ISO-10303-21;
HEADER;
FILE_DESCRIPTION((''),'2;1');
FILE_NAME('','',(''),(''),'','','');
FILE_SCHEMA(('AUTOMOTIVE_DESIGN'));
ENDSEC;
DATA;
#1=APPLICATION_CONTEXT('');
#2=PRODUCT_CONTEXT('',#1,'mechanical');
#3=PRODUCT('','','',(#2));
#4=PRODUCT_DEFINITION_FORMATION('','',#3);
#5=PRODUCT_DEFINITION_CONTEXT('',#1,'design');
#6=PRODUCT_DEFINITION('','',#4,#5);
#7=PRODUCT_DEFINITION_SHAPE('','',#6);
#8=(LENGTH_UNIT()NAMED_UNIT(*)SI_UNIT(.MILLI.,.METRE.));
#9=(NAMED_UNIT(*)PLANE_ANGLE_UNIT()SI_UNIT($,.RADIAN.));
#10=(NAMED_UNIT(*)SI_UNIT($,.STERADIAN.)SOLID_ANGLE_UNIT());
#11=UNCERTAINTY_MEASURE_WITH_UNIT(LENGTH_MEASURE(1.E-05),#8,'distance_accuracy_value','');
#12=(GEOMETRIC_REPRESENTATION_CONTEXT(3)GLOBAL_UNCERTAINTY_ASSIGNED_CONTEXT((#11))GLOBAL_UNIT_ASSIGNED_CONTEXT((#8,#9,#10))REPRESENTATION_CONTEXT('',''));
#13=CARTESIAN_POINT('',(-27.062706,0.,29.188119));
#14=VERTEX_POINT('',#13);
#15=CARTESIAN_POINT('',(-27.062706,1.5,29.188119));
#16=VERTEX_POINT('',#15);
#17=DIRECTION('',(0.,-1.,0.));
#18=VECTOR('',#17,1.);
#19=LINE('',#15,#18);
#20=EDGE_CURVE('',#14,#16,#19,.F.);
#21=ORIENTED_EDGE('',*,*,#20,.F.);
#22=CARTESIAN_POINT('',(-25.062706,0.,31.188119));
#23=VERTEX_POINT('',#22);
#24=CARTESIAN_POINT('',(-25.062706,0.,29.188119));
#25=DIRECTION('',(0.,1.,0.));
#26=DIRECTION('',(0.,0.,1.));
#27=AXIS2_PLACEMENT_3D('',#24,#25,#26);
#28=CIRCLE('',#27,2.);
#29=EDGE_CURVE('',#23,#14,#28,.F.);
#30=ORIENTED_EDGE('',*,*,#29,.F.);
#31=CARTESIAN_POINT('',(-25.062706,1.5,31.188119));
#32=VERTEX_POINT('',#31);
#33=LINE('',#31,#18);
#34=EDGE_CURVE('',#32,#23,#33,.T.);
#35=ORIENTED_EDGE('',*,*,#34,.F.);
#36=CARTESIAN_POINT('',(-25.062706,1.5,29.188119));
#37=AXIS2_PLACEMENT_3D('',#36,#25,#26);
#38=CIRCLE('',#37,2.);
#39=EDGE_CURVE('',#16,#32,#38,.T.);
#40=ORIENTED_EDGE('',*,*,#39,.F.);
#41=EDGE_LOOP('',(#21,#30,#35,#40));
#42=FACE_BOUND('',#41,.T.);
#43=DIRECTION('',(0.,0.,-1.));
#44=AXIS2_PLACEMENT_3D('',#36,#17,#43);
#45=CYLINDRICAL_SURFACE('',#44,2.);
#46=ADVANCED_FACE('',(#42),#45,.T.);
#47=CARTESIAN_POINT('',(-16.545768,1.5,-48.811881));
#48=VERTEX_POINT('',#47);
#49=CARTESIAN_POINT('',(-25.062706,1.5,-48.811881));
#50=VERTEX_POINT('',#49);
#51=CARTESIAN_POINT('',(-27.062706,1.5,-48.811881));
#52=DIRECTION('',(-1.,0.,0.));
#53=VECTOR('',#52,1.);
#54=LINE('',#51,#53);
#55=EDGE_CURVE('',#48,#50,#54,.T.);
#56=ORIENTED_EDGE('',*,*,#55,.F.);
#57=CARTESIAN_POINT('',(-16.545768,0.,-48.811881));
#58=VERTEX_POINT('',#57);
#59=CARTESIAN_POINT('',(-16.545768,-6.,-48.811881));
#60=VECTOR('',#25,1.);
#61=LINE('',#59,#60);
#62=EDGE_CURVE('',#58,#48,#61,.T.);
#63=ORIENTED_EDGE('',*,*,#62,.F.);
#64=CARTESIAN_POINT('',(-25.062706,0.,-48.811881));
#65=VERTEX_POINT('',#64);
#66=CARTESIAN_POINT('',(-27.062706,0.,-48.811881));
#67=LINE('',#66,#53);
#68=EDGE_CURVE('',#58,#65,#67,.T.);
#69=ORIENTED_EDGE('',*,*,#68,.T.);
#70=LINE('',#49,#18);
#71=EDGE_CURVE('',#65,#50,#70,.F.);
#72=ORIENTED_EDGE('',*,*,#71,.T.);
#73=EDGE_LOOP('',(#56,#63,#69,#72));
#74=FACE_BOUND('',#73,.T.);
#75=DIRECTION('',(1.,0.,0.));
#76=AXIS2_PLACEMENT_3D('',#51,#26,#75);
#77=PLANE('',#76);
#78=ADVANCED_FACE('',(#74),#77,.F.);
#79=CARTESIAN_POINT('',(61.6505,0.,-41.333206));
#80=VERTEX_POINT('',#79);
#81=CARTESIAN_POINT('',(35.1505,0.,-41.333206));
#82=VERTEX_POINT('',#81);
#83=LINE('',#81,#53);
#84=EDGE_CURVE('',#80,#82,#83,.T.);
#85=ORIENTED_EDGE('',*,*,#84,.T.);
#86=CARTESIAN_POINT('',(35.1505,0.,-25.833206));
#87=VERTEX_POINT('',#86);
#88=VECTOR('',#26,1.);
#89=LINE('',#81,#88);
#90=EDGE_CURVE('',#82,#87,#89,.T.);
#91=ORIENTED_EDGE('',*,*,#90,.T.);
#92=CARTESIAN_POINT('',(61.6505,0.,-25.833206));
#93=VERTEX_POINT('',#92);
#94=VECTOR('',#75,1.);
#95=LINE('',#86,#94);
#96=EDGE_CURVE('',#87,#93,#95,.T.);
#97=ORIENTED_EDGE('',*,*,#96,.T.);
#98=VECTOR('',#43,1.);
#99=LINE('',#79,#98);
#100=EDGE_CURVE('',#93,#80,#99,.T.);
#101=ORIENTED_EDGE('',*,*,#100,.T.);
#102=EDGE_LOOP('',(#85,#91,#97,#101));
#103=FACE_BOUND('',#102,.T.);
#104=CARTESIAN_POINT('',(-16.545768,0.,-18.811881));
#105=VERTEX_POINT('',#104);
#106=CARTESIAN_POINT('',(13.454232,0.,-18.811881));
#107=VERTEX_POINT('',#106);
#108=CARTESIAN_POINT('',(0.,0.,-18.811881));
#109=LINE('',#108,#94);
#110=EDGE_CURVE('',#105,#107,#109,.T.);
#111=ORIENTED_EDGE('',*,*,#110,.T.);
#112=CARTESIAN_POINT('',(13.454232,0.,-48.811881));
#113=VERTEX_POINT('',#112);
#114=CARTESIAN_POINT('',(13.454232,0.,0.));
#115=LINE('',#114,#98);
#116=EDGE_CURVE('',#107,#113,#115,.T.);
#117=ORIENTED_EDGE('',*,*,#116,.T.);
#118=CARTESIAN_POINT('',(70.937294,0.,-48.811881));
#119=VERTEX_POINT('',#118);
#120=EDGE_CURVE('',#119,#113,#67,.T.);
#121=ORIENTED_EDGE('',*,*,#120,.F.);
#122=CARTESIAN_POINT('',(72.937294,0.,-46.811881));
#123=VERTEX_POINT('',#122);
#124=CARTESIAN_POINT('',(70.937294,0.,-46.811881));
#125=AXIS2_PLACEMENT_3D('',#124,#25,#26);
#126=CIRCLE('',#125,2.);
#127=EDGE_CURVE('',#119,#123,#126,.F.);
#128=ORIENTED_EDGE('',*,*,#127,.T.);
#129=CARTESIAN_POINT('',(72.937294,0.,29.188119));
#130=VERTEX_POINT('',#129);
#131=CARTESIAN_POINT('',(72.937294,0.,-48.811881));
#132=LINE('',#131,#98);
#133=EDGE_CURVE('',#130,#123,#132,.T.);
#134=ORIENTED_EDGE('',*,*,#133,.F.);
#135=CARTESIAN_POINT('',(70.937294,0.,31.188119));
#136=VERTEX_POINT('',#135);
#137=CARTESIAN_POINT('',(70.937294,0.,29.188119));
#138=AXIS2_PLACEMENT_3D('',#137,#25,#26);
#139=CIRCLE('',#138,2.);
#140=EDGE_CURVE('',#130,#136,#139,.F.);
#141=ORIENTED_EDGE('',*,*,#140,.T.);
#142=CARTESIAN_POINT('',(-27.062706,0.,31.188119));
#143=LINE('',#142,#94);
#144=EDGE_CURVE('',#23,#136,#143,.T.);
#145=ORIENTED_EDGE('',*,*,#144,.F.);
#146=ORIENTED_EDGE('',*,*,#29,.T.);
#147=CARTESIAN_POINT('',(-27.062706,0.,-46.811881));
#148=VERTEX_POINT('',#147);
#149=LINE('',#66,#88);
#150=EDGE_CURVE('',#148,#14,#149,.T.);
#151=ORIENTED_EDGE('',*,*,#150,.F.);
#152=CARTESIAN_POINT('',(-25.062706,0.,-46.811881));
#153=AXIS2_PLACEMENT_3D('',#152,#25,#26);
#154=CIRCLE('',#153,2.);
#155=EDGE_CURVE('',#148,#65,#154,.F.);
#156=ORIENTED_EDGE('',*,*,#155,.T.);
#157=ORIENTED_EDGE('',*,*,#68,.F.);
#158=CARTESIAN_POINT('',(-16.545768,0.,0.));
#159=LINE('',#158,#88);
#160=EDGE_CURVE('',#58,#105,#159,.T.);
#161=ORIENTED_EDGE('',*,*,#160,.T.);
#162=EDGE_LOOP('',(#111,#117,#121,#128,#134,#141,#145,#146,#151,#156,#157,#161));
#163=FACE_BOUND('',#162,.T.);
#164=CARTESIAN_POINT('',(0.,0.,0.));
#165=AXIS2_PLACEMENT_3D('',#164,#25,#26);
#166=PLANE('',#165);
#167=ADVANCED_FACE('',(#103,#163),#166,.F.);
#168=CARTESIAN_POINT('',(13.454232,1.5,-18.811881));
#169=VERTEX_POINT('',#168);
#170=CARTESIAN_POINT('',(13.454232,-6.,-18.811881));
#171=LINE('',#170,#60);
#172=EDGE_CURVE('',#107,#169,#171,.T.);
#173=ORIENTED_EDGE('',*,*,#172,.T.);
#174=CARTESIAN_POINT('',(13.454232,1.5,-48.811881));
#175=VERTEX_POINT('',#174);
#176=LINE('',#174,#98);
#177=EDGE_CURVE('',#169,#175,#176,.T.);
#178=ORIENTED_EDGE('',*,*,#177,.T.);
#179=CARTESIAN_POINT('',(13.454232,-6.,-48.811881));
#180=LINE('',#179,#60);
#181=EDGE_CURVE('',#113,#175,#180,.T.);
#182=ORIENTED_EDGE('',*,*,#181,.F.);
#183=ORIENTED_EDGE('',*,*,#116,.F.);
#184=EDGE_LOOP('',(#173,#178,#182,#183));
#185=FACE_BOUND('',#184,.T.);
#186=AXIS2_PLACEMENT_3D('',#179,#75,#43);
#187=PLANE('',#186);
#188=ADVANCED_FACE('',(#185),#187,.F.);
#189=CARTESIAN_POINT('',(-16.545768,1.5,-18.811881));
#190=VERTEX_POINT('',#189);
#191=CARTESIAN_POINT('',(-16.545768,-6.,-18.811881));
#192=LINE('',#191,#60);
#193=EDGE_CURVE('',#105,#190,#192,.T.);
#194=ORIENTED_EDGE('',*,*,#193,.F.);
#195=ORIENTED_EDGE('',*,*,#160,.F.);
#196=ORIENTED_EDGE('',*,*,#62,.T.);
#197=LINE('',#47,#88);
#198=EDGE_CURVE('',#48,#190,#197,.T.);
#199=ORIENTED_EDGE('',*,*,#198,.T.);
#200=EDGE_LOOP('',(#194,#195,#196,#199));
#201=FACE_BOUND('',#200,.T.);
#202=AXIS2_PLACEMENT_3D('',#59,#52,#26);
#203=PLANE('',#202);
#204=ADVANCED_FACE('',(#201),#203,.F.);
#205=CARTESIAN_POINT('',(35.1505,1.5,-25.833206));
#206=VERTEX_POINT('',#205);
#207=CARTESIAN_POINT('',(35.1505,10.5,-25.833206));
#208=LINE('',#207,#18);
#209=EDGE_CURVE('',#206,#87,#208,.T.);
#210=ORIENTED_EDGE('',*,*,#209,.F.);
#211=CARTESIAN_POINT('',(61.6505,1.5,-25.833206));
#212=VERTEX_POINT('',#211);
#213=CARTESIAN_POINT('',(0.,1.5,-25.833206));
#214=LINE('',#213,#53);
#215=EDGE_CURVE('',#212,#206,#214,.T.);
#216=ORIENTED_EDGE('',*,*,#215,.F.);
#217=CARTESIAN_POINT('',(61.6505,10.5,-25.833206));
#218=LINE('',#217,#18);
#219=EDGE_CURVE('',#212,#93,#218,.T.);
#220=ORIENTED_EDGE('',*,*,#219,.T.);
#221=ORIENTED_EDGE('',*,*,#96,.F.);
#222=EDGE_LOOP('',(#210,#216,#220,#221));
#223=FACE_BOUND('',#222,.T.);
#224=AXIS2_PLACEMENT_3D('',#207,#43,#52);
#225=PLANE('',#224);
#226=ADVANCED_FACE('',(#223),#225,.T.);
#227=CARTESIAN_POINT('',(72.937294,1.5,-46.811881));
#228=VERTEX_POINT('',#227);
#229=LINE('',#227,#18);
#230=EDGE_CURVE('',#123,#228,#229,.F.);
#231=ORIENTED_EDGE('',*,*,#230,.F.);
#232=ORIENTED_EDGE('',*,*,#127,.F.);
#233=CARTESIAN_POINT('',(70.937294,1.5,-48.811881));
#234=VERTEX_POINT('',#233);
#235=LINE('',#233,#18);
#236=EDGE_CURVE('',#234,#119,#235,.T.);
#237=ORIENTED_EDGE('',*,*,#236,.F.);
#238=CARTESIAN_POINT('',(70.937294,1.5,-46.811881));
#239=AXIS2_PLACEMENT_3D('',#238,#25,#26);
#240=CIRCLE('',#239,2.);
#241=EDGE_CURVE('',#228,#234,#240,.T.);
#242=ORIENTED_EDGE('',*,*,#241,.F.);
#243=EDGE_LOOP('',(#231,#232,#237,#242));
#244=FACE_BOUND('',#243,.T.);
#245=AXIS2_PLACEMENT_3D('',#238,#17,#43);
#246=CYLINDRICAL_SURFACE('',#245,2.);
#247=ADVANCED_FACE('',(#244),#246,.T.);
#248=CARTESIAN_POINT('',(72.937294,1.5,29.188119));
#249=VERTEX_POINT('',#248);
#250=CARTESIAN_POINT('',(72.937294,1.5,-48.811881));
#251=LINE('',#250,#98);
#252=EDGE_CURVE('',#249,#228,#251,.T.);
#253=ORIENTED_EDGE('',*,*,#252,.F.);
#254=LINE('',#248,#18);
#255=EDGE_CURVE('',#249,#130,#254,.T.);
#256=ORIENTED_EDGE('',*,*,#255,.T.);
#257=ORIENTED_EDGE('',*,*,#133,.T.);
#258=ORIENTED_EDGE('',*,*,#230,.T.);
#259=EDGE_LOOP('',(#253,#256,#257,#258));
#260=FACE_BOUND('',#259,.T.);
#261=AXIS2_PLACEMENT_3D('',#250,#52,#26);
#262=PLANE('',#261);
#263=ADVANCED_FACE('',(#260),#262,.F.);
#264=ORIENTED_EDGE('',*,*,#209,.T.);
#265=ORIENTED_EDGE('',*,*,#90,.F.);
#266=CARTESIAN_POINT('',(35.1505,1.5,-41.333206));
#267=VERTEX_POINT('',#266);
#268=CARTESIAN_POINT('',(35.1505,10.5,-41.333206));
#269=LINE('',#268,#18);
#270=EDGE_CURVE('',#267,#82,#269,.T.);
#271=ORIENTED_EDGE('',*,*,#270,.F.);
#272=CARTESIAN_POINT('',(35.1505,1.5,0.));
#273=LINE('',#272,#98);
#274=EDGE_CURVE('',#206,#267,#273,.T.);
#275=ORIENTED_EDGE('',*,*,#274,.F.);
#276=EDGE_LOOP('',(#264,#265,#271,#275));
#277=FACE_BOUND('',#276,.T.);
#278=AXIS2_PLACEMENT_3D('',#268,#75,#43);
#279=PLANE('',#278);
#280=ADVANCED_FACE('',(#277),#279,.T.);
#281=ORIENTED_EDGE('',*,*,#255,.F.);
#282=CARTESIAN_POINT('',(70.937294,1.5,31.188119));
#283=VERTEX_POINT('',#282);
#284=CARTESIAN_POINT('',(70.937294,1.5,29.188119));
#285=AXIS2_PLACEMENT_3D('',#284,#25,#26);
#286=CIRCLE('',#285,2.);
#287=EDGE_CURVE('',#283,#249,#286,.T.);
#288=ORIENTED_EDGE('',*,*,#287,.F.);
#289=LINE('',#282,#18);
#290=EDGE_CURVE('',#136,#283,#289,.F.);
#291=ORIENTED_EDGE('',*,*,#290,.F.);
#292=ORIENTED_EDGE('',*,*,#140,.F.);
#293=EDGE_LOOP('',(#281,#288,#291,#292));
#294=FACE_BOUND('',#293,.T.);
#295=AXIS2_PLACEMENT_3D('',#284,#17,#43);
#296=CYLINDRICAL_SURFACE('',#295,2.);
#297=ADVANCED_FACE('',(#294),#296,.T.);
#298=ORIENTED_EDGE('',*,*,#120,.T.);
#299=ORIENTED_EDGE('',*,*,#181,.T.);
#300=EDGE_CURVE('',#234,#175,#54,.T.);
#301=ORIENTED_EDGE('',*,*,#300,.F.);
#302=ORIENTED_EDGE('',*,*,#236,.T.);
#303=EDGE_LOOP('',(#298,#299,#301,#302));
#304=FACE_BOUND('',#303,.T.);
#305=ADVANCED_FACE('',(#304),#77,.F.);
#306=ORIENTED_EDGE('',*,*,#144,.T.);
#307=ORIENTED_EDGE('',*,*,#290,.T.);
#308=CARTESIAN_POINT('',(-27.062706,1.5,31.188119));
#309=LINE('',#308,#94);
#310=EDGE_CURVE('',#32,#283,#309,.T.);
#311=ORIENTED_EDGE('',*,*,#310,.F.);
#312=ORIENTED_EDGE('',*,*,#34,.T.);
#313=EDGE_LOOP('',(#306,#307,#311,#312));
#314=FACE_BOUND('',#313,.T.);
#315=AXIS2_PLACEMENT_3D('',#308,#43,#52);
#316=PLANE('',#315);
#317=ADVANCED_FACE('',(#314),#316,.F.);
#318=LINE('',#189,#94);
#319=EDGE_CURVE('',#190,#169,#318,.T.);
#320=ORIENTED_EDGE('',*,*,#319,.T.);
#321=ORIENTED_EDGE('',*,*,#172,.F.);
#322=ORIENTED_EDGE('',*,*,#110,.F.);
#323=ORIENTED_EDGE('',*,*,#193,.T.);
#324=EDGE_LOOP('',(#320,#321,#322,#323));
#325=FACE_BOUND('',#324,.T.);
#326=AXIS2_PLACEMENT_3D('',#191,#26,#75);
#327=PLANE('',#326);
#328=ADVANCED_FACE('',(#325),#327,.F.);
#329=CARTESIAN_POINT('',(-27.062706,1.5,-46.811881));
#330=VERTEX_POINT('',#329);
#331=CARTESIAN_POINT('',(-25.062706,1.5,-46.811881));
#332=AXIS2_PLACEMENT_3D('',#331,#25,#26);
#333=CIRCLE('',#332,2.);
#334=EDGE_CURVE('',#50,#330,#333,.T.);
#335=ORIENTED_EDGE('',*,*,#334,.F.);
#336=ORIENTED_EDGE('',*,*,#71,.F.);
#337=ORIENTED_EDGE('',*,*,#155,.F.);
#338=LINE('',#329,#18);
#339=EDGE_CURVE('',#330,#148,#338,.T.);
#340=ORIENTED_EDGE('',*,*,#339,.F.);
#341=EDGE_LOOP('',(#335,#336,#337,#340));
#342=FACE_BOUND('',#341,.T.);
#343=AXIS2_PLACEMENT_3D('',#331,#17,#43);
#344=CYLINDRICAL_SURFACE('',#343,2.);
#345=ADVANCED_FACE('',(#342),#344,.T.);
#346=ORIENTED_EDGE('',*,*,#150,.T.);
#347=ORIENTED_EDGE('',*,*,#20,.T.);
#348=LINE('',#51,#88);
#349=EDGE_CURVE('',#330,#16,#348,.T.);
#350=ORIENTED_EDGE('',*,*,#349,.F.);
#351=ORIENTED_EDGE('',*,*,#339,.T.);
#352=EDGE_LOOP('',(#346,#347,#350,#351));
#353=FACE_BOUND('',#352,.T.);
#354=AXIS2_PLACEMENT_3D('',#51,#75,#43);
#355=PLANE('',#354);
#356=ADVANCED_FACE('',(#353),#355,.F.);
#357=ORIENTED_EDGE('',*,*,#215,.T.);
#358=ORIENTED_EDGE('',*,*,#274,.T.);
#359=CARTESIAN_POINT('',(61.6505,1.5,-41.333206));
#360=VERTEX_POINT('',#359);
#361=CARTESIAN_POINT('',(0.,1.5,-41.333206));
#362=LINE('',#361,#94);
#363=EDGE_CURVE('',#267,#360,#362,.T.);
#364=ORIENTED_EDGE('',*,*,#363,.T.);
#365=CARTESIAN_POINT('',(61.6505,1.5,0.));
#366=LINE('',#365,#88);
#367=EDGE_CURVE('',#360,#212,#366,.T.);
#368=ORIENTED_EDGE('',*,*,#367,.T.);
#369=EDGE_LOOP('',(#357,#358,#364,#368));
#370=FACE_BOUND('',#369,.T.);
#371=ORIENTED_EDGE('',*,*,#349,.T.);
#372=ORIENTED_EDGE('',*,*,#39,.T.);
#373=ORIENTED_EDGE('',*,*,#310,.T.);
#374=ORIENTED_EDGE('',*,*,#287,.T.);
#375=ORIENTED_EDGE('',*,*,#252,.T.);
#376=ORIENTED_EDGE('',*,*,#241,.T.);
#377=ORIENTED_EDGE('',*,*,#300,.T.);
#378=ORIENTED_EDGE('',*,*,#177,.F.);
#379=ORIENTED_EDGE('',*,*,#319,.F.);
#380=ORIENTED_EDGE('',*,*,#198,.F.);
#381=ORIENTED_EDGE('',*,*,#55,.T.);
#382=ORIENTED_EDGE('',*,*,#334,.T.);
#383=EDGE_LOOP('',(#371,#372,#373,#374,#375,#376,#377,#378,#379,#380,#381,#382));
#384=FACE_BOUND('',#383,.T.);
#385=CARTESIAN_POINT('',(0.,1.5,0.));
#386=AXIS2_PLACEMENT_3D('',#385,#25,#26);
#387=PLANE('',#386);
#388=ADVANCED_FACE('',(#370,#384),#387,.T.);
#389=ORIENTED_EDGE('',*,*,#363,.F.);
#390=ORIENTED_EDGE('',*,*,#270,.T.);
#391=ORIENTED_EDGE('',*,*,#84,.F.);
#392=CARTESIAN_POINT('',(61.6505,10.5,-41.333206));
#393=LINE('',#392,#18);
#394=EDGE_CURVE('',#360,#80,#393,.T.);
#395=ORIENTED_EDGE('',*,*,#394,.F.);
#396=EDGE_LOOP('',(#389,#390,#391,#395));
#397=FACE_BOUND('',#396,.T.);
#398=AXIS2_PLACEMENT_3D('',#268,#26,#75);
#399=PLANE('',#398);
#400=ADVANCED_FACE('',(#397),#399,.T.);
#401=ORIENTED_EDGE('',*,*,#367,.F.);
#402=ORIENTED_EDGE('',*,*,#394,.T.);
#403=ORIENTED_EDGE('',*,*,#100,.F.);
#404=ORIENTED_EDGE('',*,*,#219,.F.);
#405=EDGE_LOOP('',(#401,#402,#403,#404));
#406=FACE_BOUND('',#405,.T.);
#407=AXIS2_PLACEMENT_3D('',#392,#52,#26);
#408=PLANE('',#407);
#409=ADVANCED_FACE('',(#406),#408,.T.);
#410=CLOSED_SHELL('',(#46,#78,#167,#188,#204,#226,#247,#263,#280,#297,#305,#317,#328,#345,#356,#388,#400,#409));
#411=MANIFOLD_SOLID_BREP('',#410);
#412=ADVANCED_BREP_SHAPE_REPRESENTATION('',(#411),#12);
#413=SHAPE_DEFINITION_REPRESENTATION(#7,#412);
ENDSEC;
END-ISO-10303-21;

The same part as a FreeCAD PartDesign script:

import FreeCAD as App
import Part
import Sketcher
Q = App.Units.Quantity


def edges_at(feature, points):
    """Names of the edges that pass closest to the given points."""
    edges = feature.Shape.Edges
    near = lambda p: min(range(len(edges)), key=lambda i: edges[i].distToShape(Part.Vertex(*p))[0])
    return sorted({f"Edge{near(p) + 1}" for p in points})


def add_polygon(sketch, points):
    """Adds a closed chain of lines whose ends are joined by coincident constraints."""
    first, n = sketch.GeometryCount, len(points)
    for a, b in zip(points, points[1:] + points[:1]):
        sketch.addGeometry(Part.LineSegment(App.Vector(*a, 0), App.Vector(*b, 0)), False)
    for i in range(n):
        sketch.addConstraint(Sketcher.Constraint("Coincident", first + i, 2, first + (i + 1) % n, 1))

doc = App.newDocument("Part")
params = doc.addObject("Spreadsheet::Sheet", "Params")
for row, (alias, value) in enumerate([
    ("sketch1_width", "100 mm"),
    ("sketch1_height", "80 mm"),
    ("pad1_length", "1.5 mm"),
    ("fillet_radius", "2 mm"),
    ("sketch2_width", "30 mm"),
    ("pocket1_length", "7.5 mm"),
    ("sketch3_width", "26.5 mm"),
    ("sketch3_height", "15.5 mm"),
    ("pocket2_length", "10.5 mm"),
], start=1):
    params.set(f"A{row}", alias)
    params.set(f"B{row}", "=" + value)
    params.setAlias(f"B{row}", alias)

body = doc.addObject("PartDesign::Body", "Body")

# Sketch on XZ plane
sketch1 = body.newObject("Sketcher::SketchObject", "Sketch")
sketch1.AttachmentSupport = (doc.getObject("XZ_Plane"), [""])
sketch1.MapMode = "FlatFace"
add_polygon(sketch1, [(-27, -49), (-27, 31), (73, 31), (73, -49)])  # lines 0-3
sketch1.addConstraint([
    Sketcher.Constraint("Vertical", 0),
    Sketcher.Constraint("Horizontal", 1),
    Sketcher.Constraint("Vertical", 2),
    Sketcher.Constraint("Horizontal", 3),
    Sketcher.Constraint("DistanceX", 1, 1, 1, 2, Q("100 mm")),
    Sketcher.Constraint("DistanceY", 0, 1, 0, 2, Q("80 mm")),
    Sketcher.Constraint("DistanceY", -1, 1, 0, 2, Q("31.188119 mm")),
    Sketcher.Constraint("DistanceX", 0, 2, -1, 1, Q("27.062706 mm")),
])
sketch1.setExpression("Constraints[8]", "Params.sketch1_width")
sketch1.setExpression("Constraints[9]", "Params.sketch1_height")
pad1 = body.newObject("PartDesign::Pad", "Pad")
pad1.Profile = sketch1
pad1.setExpression("Length", "Params.pad1_length")
pad1.Reversed = True
doc.recompute()

fillet = body.newObject("PartDesign::Fillet", "Fillet")
fillet.Base = (pad1, edges_at(pad1, [
    (-27.063, 0.75, -48.812),
    (72.937, 0.75, -48.812),
    (72.937, 0.75, 31.188),
    (-27.063, 0.75, 31.188),
]))
fillet.setExpression("Radius", "Params.fillet_radius")

# Sketch on XZ plane
sketch2 = body.newObject("Sketcher::SketchObject", "Sketch001")
sketch2.AttachmentSupport = (doc.getObject("XZ_Plane"), [""])
sketch2.MapMode = "FlatFace"
sketch2.AttachmentOffset = App.Placement(App.Vector(0, 0, -1.5), App.Rotation())
add_polygon(sketch2, [(-17, -49), (-17, -19), (13, -19), (13, -49)])  # lines 0-3
sketch2.addConstraint([
    Sketcher.Constraint("Vertical", 0),
    Sketcher.Constraint("Horizontal", 1),
    Sketcher.Constraint("Vertical", 2),
    Sketcher.Constraint("Horizontal", 3),
    Sketcher.Constraint("Equal", 3, 0),
    Sketcher.Constraint("DistanceX", 1, 1, 1, 2, Q("30 mm")),
    Sketcher.Constraint("DistanceX", 0, 2, -1, 1, Q("16.545768 mm")),
    Sketcher.Constraint("DistanceY", 0, 2, -1, 1, Q("18.811881 mm")),
])
sketch2.setExpression("Constraints[9]", "Params.sketch2_width")
pocket1 = body.newObject("PartDesign::Pocket", "Pocket")
pocket1.Profile = sketch2
pocket1.setExpression("Length", "Params.pocket1_length")
pocket1.Reversed = True

# Sketch on XZ plane
sketch3 = body.newObject("Sketcher::SketchObject", "Sketch002")
sketch3.AttachmentSupport = (doc.getObject("XZ_Plane"), [""])
sketch3.MapMode = "FlatFace"
add_polygon(sketch3, [(35, -41), (35, -26), (62, -26), (62, -41)])  # lines 0-3
sketch3.addConstraint([
    Sketcher.Constraint("Vertical", 0),
    Sketcher.Constraint("Horizontal", 1),
    Sketcher.Constraint("Vertical", 2),
    Sketcher.Constraint("Horizontal", 3),
    Sketcher.Constraint("DistanceX", 1, 1, 1, 2, Q("26.5 mm")),
    Sketcher.Constraint("DistanceY", 0, 1, 0, 2, Q("15.5 mm")),
    Sketcher.Constraint("DistanceX", -1, 1, 0, 2, Q("35.1505 mm")),
    Sketcher.Constraint("DistanceY", 0, 2, -1, 1, Q("25.833206 mm")),
])
sketch3.setExpression("Constraints[8]", "Params.sketch3_width")
sketch3.setExpression("Constraints[9]", "Params.sketch3_height")
pocket2 = body.newObject("PartDesign::Pocket", "Pocket001")
pocket2.Profile = sketch3
pocket2.setExpression("Length", "Params.pocket2_length")

doc.recompute()
